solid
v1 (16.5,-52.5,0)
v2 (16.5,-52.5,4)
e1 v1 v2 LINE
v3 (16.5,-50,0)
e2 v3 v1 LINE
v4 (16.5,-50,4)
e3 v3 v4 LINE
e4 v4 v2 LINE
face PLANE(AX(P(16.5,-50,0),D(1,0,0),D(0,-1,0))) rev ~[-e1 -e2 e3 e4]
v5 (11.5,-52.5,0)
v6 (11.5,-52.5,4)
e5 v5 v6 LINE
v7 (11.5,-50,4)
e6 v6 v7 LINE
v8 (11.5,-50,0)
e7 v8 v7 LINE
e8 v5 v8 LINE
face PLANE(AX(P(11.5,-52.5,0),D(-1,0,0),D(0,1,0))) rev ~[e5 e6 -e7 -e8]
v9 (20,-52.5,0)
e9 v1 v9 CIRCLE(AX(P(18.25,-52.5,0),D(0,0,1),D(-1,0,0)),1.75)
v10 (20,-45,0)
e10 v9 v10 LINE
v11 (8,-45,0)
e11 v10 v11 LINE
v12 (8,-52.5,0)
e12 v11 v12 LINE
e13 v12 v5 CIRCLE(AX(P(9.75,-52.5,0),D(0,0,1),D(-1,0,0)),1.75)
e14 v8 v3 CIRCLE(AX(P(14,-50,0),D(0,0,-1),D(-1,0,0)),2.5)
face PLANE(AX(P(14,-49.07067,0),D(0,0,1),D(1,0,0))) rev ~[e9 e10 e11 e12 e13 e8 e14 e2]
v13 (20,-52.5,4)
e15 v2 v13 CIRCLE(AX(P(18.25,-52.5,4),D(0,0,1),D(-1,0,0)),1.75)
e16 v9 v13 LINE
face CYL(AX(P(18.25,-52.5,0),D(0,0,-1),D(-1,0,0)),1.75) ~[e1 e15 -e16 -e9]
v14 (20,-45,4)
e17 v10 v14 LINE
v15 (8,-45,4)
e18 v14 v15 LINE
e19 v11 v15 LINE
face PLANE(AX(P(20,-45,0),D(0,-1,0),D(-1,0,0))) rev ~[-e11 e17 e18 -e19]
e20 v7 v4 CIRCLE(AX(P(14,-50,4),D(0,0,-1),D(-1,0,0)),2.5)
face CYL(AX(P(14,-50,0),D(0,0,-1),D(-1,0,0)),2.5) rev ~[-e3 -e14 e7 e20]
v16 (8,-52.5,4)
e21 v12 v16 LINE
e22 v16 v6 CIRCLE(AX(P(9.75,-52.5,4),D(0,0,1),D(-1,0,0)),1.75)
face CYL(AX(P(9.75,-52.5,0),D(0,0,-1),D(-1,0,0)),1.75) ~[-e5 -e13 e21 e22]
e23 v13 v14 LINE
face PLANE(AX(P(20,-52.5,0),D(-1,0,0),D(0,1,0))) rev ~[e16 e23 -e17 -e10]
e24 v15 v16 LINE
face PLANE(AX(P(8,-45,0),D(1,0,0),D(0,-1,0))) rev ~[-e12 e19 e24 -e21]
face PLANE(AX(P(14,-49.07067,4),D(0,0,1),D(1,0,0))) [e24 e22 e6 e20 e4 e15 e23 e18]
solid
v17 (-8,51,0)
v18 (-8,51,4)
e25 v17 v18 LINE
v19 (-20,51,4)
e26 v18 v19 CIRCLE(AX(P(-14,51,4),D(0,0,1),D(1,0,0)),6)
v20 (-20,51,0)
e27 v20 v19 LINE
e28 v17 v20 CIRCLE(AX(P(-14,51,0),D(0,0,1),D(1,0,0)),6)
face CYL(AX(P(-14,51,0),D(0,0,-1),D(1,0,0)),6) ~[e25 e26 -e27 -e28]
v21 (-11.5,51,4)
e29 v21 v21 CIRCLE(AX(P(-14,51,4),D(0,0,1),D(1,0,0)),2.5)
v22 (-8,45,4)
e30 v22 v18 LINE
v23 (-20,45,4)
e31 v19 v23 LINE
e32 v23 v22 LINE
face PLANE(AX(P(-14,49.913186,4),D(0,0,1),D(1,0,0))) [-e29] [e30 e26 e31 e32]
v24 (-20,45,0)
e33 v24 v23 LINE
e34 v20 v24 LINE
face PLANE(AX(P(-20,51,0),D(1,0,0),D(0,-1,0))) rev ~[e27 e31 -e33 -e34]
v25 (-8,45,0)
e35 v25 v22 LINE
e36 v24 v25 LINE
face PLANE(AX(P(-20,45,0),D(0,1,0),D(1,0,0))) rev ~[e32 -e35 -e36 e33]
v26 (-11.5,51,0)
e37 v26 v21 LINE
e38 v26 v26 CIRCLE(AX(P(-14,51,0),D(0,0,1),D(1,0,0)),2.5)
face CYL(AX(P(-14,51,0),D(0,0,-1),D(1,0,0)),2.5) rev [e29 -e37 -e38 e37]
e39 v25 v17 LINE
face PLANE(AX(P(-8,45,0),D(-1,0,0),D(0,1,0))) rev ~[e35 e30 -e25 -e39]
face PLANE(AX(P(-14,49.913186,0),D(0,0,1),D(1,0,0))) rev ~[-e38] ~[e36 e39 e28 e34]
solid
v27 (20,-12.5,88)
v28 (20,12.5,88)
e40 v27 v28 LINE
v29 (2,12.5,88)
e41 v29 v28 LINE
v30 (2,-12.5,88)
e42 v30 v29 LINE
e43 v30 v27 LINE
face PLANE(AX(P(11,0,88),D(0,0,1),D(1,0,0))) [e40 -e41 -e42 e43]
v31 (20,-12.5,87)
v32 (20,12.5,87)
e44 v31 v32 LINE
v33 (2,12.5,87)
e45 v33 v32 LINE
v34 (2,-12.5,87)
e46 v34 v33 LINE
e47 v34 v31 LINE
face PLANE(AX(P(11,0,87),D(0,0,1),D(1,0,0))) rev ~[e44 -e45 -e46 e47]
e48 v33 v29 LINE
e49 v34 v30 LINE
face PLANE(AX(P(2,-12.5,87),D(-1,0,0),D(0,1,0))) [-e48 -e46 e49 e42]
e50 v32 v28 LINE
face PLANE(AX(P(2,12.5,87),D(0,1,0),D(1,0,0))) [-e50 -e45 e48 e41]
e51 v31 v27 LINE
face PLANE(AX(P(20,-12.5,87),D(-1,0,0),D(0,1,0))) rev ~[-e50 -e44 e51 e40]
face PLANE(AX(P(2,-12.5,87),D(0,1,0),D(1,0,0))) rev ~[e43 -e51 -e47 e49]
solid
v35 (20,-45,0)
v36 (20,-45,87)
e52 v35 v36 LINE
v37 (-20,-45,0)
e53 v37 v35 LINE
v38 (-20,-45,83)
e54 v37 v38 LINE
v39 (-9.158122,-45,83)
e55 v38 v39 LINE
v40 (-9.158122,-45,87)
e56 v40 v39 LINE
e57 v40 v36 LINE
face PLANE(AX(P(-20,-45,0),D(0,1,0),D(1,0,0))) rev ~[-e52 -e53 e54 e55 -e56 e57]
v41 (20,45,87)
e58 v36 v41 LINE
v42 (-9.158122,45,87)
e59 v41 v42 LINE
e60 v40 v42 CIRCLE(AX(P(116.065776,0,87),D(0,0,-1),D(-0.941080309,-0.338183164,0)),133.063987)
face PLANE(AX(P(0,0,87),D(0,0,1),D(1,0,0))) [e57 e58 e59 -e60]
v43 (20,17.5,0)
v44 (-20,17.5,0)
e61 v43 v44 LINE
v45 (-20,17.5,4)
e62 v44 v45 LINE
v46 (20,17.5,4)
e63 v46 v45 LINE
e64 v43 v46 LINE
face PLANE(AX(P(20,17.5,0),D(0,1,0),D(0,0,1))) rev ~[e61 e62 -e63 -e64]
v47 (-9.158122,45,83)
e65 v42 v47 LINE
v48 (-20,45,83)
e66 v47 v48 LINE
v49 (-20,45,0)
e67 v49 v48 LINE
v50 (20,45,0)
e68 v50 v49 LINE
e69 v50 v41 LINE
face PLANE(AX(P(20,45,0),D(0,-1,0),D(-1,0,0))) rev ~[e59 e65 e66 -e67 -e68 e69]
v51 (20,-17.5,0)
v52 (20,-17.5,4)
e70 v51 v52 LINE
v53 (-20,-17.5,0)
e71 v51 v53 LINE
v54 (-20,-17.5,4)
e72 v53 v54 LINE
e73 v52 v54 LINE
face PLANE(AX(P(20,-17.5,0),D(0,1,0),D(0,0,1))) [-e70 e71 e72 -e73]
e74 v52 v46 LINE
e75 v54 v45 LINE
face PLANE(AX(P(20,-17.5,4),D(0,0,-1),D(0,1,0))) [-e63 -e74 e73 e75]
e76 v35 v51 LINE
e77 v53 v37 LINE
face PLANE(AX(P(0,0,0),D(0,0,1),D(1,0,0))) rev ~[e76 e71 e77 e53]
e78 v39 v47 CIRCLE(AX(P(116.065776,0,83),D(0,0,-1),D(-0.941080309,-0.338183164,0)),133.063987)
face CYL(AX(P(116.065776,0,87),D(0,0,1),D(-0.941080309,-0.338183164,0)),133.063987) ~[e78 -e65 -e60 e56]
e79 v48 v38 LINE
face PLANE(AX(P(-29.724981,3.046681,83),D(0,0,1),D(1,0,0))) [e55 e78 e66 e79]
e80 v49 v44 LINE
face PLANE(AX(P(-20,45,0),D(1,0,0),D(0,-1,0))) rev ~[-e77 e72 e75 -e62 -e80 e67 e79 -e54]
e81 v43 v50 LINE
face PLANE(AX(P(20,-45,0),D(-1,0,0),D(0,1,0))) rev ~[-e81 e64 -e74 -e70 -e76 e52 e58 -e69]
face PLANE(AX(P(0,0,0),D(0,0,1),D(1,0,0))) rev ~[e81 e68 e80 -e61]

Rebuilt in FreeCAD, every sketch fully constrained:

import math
import FreeCAD as App
import Part
import Sketcher

doc = App.newDocument("Part")
body = doc.addObject("PartDesign::Body", "Body")

sketch1 = body.newObject("Sketcher::SketchObject", "Sketch")
sketch1.AttachmentSupport = (doc.getObject("XY_Plane"), [""])
sketch1.MapMode = "FlatFace"
sketch1.addGeometry(Part.LineSegment(App.Vector(20, -45, 0), App.Vector(20, 45, 0)), False)
sketch1.addGeometry(Part.LineSegment(App.Vector(20, 45, 0), App.Vector(-20, 45, 0)), False)
sketch1.addGeometry(Part.LineSegment(App.Vector(-20, 45, 0), App.Vector(-20, -45, 0)), False)
sketch1.addGeometry(Part.LineSegment(App.Vector(-20, -45, 0), App.Vector(20, -45, 0)), False)
sketch1.addConstraint(Sketcher.Constraint("Coincident", 0, 2, 1, 1))
sketch1.addConstraint(Sketcher.Constraint("Coincident", 1, 2, 2, 1))
sketch1.addConstraint(Sketcher.Constraint("Coincident", 2, 2, 3, 1))
sketch1.addConstraint(Sketcher.Constraint("Coincident", 3, 2, 0, 1))
sketch1.addConstraint(Sketcher.Constraint("Vertical", 0))
sketch1.addConstraint(Sketcher.Constraint("Horizontal", 1))
sketch1.addConstraint(Sketcher.Constraint("Vertical", 2))
sketch1.addConstraint(Sketcher.Constraint("Horizontal", 3))
sketch1.addConstraint(Sketcher.Constraint("Symmetric", 0, 2, 2, 2, -1, 1))
sketch1.addConstraint(Sketcher.Constraint("DistanceX", 1, 2, 1, 1, 40.0))
sketch1.addConstraint(Sketcher.Constraint("DistanceY", 0, 1, 0, 2, 90.0))
pad1 = body.newObject("PartDesign::Pad", "Pad")
pad1.Profile = sketch1
pad1.Length = 87

sketch2 = body.newObject("Sketcher::SketchObject", "Sketch001")
sketch2.AttachmentSupport = (doc.getObject("XY_Plane"), [""])
sketch2.MapMode = "FlatFace"
sketch2.AttachmentOffset = App.Placement(App.Vector(0, 0, 87), App.Rotation())
sketch2.addGeometry(Part.LineSegment(App.Vector(-9, 45, 0), App.Vector(-9, 63, 0)), False)
sketch2.addGeometry(Part.LineSegment(App.Vector(-9, 63, 0), App.Vector(-46, 63, 0)), False)
sketch2.addGeometry(Part.LineSegment(App.Vector(-46, 63, 0), App.Vector(-46, -56, 0)), False)
sketch2.addGeometry(Part.LineSegment(App.Vector(-46, -56, 0), App.Vector(-9, -56, 0)), False)
sketch2.addGeometry(Part.LineSegment(App.Vector(-9, -56, 0), App.Vector(-9, -45, 0)), False)
sketch2.addGeometry(Part.ArcOfCircle(Part.Circle(App.Vector(116, 0, 0), App.Vector(0, 0, 1), 133), math.radians(160), math.radians(200)), False)
sketch2.addConstraint(Sketcher.Constraint("Coincident", 0, 2, 1, 1))
sketch2.addConstraint(Sketcher.Constraint("Coincident", 1, 2, 2, 1))
sketch2.addConstraint(Sketcher.Constraint("Coincident", 2, 2, 3, 1))
sketch2.addConstraint(Sketcher.Constraint("Coincident", 3, 2, 4, 1))
sketch2.addConstraint(Sketcher.Constraint("Coincident", 4, 2, 5, 2))
sketch2.addConstraint(Sketcher.Constraint("Coincident", 5, 1, 0, 1))
sketch2.addConstraint(Sketcher.Constraint("Vertical", 0))
sketch2.addConstraint(Sketcher.Constraint("Horizontal", 1))
sketch2.addConstraint(Sketcher.Constraint("Vertical", 2))
sketch2.addConstraint(Sketcher.Constraint("Horizontal", 3))
sketch2.addConstraint(Sketcher.Constraint("Vertical", 4))
sketch2.addConstraint(Sketcher.Constraint("Symmetric", 4, 2, 5, 1, -1))
sketch2.addConstraint(Sketcher.Constraint("DistanceY", 4, 2, -1, 1, 45.0))
sketch2.addConstraint(Sketcher.Constraint("Radius", 5, 133.063987))
sketch2.addConstraint(Sketcher.Constraint("DistanceX", 1, 2, 1, 1, 36.991549))
sketch2.addConstraint(Sketcher.Constraint("DistanceY", 4, 1, 4, 2, 11.387458))
sketch2.addConstraint(Sketcher.Constraint("DistanceY", 0, 1, 0, 2, 17.903538))
sketch2.addConstraint(Sketcher.Constraint("DistanceX", 1, 2, -1, 1, 46.149671))
pocket1 = body.newObject("PartDesign::Pocket", "Pocket")
pocket1.Profile = sketch2
pocket1.Length = 4

sketch3 = body.newObject("Sketcher::SketchObject", "Sketch002")
sketch3.AttachmentSupport = (doc.getObject("YZ_Plane"), [""])
sketch3.MapMode = "FlatFace"
sketch3.AttachmentOffset = App.Placement(App.Vector(0, 0, 20), App.Rotation())
sketch3.addGeometry(Part.LineSegment(App.Vector(-17.5, 4, 0), App.Vector(-17.5, 0, 0)), False)
sketch3.addGeometry(Part.LineSegment(App.Vector(-17.5, 0, 0), App.Vector(17.5, 0, 0)), False)
sketch3.addGeometry(Part.LineSegment(App.Vector(17.5, 0, 0), App.Vector(17.5, 4, 0)), False)
sketch3.addGeometry(Part.LineSegment(App.Vector(17.5, 4, 0), App.Vector(-17.5, 4, 0)), False)
sketch3.addConstraint(Sketcher.Constraint("Coincident", 0, 2, 1, 1))
sketch3.addConstraint(Sketcher.Constraint("Coincident", 1, 2, 2, 1))
sketch3.addConstraint(Sketcher.Constraint("Coincident", 2, 2, 3, 1))
sketch3.addConstraint(Sketcher.Constraint("Coincident", 3, 2, 0, 1))
sketch3.addConstraint(Sketcher.Constraint("Vertical", 0))
sketch3.addConstraint(Sketcher.Constraint("Horizontal", 1))
sketch3.addConstraint(Sketcher.Constraint("Vertical", 2))
sketch3.addConstraint(Sketcher.Constraint("Horizontal", 3))
sketch3.addConstraint(Sketcher.Constraint("Symmetric", 0, 2, 1, 2, -1, 1))
sketch3.addConstraint(Sketcher.Constraint("DistanceX", 1, 1, 1, 2, 35.0))
sketch3.addConstraint(Sketcher.Constraint("DistanceY", 0, 2, 0, 1, 4.0))
pocket2 = body.newObject("PartDesign::Pocket", "Pocket001")
pocket2.Profile = sketch3
pocket2.Type = "ThroughAll"
body2 = doc.addObject("PartDesign::Body", "Body001")
body2.AllowCompound = True

sketch4 = body2.newObject("Sketcher::SketchObject", "Sketch003")
sketch4.AttachmentSupport = (doc.getObject("XY_Plane001"), [""])
sketch4.MapMode = "FlatFace"
sketch4.addGeometry(Part.LineSegment(App.Vector(-20, 45, 0), App.Vector(-8, 45, 0)), False)
sketch4.addGeometry(Part.LineSegment(App.Vector(-8, 45, 0), App.Vector(-8, 51, 0)), False)
sketch4.addGeometry(Part.ArcOfCircle(Part.Circle(App.Vector(-14, 51, 0), App.Vector(0, 0, 1), 6), math.radians(0), math.radians(180)), False)
sketch4.addGeometry(Part.LineSegment(App.Vector(-20, 51, 0), App.Vector(-20, 45, 0)), False)
sketch4.addGeometry(Part.Circle(App.Vector(-14, 51, 0), App.Vector(0, 0, 1), 2.5), False)
sketch4.addGeometry(Part.LineSegment(App.Vector(20, -52.5, 0), App.Vector(20, -45, 0)), False)
sketch4.addGeometry(Part.LineSegment(App.Vector(20, -45, 0), App.Vector(8, -45, 0)), False)
sketch4.addGeometry(Part.LineSegment(App.Vector(8, -45, 0), App.Vector(8, -52.5, 0)), False)
sketch4.addGeometry(Part.ArcOfCircle(Part.Circle(App.Vector(9.8, -52.5, 0), App.Vector(0, 0, 1), 1.8), math.radians(180), math.radians(360)), False)
sketch4.addGeometry(Part.LineSegment(App.Vector(11.5, -52.5, 0), App.Vector(11.5, -50, 0)), False)
sketch4.addGeometry(Part.ArcOfCircle(Part.Circle(App.Vector(14, -50, 0), App.Vector(0, 0, 1), 2.5), math.radians(0), math.radians(180)), False)
sketch4.addGeometry(Part.LineSegment(App.Vector(16.5, -50, 0), App.Vector(16.5, -52.5, 0)), False)
sketch4.addGeometry(Part.ArcOfCircle(Part.Circle(App.Vector(18.2, -52.5, 0), App.Vector(0, 0, 1), 1.8), math.radians(180), math.radians(360)), False)
sketch4.addConstraint(Sketcher.Constraint("Coincident", 0, 2, 1, 1))
sketch4.addConstraint(Sketcher.Constraint("Tangent", 1, 2, 2, 1))
sketch4.addConstraint(Sketcher.Constraint("Tangent", 2, 2, 3, 1))
sketch4.addConstraint(Sketcher.Constraint("Coincident", 3, 2, 0, 1))
sketch4.addConstraint(Sketcher.Constraint("Coincident", 5, 2, 6, 1))
sketch4.addConstraint(Sketcher.Constraint("Coincident", 6, 2, 7, 1))
sketch4.addConstraint(Sketcher.Constraint("Tangent", 7, 2, 8, 1))
sketch4.addConstraint(Sketcher.Constraint("Tangent", 8, 2, 9, 1))
sketch4.addConstraint(Sketcher.Constraint("Tangent", 9, 2, 10, 2))
sketch4.addConstraint(Sketcher.Constraint("Tangent", 10, 1, 11, 1))
sketch4.addConstraint(Sketcher.Constraint("Tangent", 11, 2, 12, 1))
sketch4.addConstraint(Sketcher.Constraint("Tangent", 12, 2, 5, 1))
sketch4.addConstraint(Sketcher.Constraint("Horizontal", 0))
sketch4.addConstraint(Sketcher.Constraint("Vertical", 1))
sketch4.addConstraint(Sketcher.Constraint("Vertical", 3))
sketch4.addConstraint(Sketcher.Constraint("Vertical", 5))
sketch4.addConstraint(Sketcher.Constraint("Horizontal", 6))
sketch4.addConstraint(Sketcher.Constraint("Vertical", 7))
sketch4.addConstraint(Sketcher.Constraint("Vertical", 9))
sketch4.addConstraint(Sketcher.Constraint("Vertical", 11))
sketch4.addConstraint(Sketcher.Constraint("Coincident", 4, 3, 2, 3))
sketch4.addConstraint(Sketcher.Constraint("Equal", 4, 10))
sketch4.addConstraint(Sketcher.Constraint("Equal", 8, 12))
sketch4.addConstraint(Sketcher.Constraint("Symmetric", 3, 2, 5, 2, -1, 1))
sketch4.addConstraint(Sketcher.Constraint("Horizontal", 8, 3, 12, 3))
sketch4.addConstraint(Sketcher.Constraint("Equal", 0, 6))
sketch4.addConstraint(Sketcher.Constraint("Diameter", 4, 5.0))
sketch4.addConstraint(Sketcher.Constraint("Radius", 2, 6.0))
sketch4.addConstraint(Sketcher.Constraint("DistanceY", 1, 1, 1, 2, 6.0))
sketch4.addConstraint(Sketcher.Constraint("DistanceY", 5, 1, 5, 2, 7.5))
sketch4.addConstraint(Sketcher.Constraint("DistanceY", 9, 1, 9, 2, 2.5))
sketch4.addConstraint(Sketcher.Constraint("DistanceX", 2, 3, -1, 1, 14.0))
sketch4.addConstraint(Sketcher.Constraint("DistanceY", -1, 1, 2, 3, 51.0))
pad2 = body2.newObject("PartDesign::Pad", "Pad001")
pad2.Profile = sketch4
pad2.Length = 4
body3 = doc.addObject("PartDesign::Body", "Body002")

sketch5 = body3.newObject("Sketcher::SketchObject", "Sketch004")
sketch5.AttachmentSupport = (doc.getObject("XY_Plane002"), [""])
sketch5.MapMode = "FlatFace"
sketch5.AttachmentOffset = App.Placement(App.Vector(0, 0, 87), App.Rotation())
sketch5.addGeometry(Part.LineSegment(App.Vector(2, 12, 0), App.Vector(2, -12, 0)), False)
sketch5.addGeometry(Part.LineSegment(App.Vector(2, -12, 0), App.Vector(20, -12, 0)), False)
sketch5.addGeometry(Part.LineSegment(App.Vector(20, -12, 0), App.Vector(20, 12, 0)), False)
sketch5.addGeometry(Part.LineSegment(App.Vector(20, 12, 0), App.Vector(2, 12, 0)), False)
sketch5.addConstraint(Sketcher.Constraint("Coincident", 0, 2, 1, 1))
sketch5.addConstraint(Sketcher.Constraint("Coincident", 1, 2, 2, 1))
sketch5.addConstraint(Sketcher.Constraint("Coincident", 2, 2, 3, 1))
sketch5.addConstraint(Sketcher.Constraint("Coincident", 3, 2, 0, 1))
sketch5.addConstraint(Sketcher.Constraint("Vertical", 0))
sketch5.addConstraint(Sketcher.Constraint("Horizontal", 1))
sketch5.addConstraint(Sketcher.Constraint("Vertical", 2))
sketch5.addConstraint(Sketcher.Constraint("Horizontal", 3))
sketch5.addConstraint(Sketcher.Constraint("DistanceX", 1, 1, 1, 2, 18.0))
sketch5.addConstraint(Sketcher.Constraint("DistanceY", 0, 2, 0, 1, 25.0))
sketch5.addConstraint(Sketcher.Constraint("DistanceX", -1, 1, 0, 2, 2.0))
sketch5.addConstraint(Sketcher.Constraint("DistanceY", 0, 2, -1, 1, 12.5))
pad3 = body3.newObject("PartDesign::Pad", "Pad002")
pad3.Profile = sketch5
pad3.Length = 1

doc.recompute()
